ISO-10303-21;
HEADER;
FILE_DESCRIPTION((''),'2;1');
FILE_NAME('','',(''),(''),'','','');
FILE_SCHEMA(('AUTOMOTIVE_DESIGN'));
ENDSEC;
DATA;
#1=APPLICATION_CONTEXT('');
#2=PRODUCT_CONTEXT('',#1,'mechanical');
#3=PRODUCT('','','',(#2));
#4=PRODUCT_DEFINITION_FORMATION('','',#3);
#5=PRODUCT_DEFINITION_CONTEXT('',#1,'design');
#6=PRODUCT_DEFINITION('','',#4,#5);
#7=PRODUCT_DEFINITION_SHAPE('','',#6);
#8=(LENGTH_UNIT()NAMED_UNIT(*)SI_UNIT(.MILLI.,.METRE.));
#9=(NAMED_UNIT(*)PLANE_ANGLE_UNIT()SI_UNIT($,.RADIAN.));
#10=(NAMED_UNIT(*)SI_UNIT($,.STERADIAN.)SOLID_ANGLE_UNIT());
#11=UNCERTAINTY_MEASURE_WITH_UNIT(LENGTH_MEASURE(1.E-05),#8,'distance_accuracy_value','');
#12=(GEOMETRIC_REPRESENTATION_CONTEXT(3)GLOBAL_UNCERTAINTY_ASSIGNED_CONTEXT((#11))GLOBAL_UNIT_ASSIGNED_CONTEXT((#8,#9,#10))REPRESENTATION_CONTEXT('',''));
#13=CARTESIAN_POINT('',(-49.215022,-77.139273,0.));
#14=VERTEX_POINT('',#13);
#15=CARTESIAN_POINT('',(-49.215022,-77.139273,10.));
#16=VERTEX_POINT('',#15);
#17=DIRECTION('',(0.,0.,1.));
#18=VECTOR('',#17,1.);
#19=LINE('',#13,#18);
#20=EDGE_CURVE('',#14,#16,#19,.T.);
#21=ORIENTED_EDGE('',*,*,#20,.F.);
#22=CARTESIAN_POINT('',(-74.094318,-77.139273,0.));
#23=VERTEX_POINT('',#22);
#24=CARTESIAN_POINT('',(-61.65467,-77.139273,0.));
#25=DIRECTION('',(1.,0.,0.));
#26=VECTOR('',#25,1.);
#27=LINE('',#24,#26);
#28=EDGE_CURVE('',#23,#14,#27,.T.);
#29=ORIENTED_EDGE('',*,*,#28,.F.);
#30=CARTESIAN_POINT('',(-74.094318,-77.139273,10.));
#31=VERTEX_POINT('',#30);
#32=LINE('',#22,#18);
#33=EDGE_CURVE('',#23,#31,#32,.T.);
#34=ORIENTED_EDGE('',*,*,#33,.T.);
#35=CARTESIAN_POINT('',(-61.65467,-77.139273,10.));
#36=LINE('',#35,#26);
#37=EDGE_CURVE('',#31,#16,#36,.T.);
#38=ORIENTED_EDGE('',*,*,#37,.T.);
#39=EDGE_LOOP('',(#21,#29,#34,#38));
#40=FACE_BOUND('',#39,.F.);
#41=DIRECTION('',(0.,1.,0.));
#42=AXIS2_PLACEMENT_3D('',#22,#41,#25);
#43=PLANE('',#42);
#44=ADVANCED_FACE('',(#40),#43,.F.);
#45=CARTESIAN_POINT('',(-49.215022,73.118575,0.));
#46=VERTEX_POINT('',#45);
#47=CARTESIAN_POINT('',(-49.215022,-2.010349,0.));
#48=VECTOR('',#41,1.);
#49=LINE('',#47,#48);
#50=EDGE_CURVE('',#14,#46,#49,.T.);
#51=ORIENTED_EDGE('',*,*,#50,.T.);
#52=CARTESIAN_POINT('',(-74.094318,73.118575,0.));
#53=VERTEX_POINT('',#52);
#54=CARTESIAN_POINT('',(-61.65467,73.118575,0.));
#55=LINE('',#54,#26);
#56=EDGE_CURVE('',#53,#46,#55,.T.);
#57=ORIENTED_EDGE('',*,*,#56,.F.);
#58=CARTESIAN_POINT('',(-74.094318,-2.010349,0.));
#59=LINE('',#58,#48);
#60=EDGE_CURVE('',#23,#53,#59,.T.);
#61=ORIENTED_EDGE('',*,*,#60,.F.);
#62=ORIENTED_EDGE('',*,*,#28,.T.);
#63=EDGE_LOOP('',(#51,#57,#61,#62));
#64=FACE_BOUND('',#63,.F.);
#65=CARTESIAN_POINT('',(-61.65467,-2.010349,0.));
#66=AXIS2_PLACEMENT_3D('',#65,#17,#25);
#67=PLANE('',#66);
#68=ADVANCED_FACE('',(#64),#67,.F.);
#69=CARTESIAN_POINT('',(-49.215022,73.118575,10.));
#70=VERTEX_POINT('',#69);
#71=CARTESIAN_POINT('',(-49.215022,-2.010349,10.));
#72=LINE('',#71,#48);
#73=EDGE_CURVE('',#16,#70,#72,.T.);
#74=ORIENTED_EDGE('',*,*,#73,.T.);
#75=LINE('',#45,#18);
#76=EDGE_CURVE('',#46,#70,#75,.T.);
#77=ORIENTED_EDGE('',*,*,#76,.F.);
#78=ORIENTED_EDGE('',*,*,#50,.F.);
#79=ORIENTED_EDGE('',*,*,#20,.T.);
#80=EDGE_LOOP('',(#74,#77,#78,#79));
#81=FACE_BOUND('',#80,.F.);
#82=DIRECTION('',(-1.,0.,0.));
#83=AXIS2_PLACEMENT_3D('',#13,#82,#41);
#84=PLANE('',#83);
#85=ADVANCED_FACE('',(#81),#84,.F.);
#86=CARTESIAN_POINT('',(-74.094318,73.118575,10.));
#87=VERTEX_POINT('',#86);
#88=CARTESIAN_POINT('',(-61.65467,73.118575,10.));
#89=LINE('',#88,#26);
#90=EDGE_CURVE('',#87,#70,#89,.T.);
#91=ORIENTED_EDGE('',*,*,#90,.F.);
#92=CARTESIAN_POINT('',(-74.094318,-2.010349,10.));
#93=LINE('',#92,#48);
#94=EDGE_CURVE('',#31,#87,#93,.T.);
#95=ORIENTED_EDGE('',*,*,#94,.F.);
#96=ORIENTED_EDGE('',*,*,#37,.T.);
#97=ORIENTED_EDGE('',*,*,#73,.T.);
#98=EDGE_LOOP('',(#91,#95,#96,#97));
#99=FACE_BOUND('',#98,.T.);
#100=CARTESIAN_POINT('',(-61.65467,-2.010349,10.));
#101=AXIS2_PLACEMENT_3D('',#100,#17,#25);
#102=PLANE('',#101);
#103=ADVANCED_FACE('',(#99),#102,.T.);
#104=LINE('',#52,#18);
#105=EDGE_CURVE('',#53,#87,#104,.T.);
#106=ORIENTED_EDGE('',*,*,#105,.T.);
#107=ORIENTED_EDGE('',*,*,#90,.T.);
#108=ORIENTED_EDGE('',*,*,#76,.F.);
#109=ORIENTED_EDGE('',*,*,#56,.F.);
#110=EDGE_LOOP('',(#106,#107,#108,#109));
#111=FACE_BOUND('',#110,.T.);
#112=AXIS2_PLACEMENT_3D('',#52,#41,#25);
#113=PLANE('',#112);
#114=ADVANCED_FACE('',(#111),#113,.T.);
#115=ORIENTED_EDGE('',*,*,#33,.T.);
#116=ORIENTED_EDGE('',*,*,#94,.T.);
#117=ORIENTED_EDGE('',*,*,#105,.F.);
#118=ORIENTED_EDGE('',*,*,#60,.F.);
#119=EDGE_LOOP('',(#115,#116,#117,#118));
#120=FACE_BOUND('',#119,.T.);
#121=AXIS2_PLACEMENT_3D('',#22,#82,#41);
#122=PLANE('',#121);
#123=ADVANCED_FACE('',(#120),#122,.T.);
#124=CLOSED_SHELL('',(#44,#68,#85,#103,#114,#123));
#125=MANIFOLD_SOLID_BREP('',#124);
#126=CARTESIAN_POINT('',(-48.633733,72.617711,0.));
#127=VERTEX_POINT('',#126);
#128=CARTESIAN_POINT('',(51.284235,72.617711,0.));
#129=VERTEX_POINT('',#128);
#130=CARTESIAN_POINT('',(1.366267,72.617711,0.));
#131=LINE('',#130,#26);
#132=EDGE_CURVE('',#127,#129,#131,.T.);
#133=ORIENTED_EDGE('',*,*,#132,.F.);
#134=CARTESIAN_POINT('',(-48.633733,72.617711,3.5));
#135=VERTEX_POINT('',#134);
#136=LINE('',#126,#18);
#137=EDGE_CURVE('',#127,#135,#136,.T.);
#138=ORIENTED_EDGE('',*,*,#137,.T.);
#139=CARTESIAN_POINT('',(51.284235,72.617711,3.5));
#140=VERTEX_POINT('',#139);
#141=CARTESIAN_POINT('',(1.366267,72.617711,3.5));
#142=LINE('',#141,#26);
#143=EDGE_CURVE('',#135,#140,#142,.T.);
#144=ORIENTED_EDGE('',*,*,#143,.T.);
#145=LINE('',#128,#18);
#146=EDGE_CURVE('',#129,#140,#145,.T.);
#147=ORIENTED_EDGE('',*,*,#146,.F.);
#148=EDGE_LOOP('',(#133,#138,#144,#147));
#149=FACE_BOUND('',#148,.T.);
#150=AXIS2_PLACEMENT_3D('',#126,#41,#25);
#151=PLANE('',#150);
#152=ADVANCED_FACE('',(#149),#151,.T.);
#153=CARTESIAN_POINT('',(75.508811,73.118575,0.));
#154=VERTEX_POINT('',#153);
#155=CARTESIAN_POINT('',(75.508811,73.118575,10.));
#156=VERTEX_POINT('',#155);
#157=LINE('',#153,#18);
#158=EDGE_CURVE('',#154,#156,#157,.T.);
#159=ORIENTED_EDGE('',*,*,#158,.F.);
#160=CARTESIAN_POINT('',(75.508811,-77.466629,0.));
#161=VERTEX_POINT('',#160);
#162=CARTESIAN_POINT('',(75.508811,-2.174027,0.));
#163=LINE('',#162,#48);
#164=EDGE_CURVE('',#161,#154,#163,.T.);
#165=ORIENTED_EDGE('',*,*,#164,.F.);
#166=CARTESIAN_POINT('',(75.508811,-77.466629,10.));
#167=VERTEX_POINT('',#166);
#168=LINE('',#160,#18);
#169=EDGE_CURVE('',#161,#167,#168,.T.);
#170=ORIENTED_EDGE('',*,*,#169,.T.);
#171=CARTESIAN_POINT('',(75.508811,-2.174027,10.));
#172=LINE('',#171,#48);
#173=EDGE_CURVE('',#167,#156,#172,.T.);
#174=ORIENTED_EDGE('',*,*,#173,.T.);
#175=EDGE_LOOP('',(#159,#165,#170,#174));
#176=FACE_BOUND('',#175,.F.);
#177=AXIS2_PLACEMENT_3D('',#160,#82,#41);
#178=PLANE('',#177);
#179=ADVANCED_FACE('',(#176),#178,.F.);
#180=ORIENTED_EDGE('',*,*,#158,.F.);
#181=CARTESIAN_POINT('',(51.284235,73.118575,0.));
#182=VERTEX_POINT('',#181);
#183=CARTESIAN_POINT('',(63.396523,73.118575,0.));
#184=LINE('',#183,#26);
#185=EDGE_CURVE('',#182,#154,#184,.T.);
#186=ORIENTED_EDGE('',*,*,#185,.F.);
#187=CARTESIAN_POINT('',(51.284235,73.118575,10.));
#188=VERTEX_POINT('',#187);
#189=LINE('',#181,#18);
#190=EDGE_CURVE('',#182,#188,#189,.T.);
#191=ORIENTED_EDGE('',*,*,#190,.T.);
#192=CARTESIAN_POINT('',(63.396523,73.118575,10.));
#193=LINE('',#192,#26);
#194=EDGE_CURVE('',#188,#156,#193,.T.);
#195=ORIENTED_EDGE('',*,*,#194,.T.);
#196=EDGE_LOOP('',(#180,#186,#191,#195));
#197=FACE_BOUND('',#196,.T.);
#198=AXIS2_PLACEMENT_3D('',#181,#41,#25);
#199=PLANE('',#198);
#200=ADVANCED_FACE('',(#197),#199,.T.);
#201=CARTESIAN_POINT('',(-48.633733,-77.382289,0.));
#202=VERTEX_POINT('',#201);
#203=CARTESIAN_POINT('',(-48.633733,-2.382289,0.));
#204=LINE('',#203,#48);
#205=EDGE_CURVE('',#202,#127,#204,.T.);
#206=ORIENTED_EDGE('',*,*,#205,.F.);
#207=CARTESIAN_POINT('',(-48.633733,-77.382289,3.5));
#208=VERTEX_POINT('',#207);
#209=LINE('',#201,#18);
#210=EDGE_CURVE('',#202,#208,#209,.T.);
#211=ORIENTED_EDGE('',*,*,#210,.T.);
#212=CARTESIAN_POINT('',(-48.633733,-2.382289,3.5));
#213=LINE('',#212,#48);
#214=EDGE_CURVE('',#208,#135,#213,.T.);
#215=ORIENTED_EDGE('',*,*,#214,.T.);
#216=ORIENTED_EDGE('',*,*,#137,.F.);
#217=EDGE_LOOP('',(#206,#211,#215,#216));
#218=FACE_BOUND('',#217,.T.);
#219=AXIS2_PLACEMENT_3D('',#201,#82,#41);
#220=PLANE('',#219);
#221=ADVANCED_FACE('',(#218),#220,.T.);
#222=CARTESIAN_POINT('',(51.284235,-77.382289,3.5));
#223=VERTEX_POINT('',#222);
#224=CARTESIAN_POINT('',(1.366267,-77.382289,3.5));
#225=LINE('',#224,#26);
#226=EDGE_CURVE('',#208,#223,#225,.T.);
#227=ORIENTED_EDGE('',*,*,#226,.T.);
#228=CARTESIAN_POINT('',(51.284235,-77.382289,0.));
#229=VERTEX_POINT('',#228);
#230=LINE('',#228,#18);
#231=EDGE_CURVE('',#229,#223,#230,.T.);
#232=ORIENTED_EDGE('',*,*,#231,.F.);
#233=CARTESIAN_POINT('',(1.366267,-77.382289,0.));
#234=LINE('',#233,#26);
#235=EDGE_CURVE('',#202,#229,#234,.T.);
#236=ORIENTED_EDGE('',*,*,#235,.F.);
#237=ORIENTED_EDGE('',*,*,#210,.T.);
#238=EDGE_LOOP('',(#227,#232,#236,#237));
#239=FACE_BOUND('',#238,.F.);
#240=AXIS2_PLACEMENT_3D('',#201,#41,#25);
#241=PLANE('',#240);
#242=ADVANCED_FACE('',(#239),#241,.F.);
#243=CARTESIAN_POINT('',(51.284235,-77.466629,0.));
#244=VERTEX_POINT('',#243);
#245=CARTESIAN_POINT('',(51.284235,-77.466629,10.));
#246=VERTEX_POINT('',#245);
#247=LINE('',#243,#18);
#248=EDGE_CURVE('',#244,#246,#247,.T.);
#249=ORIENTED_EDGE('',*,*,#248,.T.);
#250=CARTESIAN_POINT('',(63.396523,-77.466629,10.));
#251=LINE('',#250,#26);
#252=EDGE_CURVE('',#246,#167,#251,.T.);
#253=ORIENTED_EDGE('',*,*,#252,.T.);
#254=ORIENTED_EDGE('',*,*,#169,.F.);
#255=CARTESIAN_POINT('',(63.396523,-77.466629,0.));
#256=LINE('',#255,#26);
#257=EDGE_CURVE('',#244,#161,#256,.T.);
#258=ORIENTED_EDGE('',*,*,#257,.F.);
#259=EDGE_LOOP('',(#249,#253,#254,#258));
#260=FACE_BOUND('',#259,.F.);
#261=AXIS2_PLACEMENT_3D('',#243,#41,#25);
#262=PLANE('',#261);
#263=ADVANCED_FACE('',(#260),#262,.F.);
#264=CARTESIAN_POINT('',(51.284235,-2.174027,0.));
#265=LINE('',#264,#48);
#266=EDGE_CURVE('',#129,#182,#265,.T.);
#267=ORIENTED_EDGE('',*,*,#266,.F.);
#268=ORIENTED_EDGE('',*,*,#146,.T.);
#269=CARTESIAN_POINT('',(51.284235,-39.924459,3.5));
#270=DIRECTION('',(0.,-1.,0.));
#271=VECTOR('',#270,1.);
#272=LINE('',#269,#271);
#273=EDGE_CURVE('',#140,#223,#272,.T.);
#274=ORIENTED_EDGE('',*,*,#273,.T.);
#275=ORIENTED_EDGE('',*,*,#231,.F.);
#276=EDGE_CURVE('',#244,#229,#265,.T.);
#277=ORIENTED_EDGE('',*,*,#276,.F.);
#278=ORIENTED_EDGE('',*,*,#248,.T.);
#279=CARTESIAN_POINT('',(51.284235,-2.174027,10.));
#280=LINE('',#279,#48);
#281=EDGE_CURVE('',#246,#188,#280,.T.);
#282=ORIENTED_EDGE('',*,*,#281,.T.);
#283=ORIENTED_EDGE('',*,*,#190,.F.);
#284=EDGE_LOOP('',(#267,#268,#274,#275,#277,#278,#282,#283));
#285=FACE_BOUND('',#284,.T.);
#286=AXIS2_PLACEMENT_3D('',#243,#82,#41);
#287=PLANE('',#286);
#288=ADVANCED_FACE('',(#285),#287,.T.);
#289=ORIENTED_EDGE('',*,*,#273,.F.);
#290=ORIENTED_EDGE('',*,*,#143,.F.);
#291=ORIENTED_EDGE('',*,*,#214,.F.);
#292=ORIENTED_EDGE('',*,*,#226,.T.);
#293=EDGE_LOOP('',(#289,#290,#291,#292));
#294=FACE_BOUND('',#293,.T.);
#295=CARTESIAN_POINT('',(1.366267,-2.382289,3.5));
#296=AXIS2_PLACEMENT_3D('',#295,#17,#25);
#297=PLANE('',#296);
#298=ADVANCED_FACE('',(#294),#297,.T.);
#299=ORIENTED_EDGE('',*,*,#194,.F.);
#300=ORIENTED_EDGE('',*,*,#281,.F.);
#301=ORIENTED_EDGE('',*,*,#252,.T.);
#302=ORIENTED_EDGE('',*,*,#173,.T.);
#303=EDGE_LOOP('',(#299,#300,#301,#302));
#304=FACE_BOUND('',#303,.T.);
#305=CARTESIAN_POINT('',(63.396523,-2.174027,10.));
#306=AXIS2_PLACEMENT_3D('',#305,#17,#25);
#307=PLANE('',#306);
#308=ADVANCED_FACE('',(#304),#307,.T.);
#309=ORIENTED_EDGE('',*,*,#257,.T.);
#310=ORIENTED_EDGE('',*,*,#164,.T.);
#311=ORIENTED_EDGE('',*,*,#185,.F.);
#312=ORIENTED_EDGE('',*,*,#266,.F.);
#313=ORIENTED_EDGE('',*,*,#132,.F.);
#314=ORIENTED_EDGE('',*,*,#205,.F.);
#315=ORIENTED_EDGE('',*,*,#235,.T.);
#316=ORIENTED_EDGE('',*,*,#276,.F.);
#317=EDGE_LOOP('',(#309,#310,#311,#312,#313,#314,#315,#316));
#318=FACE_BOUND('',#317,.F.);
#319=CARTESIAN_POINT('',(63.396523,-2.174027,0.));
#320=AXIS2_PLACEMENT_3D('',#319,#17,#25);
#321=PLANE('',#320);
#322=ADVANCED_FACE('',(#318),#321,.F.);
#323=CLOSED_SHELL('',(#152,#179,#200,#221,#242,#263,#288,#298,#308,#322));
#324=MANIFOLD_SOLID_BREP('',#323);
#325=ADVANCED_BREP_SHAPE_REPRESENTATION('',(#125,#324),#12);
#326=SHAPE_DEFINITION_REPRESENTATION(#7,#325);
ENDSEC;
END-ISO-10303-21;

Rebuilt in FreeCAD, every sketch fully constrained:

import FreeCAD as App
import Part
import Sketcher
from FreeCAD import Vector

doc = App.newDocument("Part")
body = doc.addObject("PartDesign::Body", "Body")
body.AllowCompound = True

# Sketch on XY plane
sketch1 = body.newObject("Sketcher::SketchObject", "Sketch")
sketch1.AttachmentSupport = (doc.getObject("XY_Plane"), [""])
sketch1.MapMode = "FlatFace"
sketch1.addGeometry([
    Part.LineSegment(Vector(-49, 73, 0), Vector(-49, -77, 0)),
    Part.LineSegment(Vector(-49, -77, 0), Vector(51, -77, 0)),
    Part.LineSegment(Vector(51, -77, 0), Vector(51, 73, 0)),
    Part.LineSegment(Vector(51, 73, 0), Vector(-49, 73, 0)),
], False)
sketch1.addConstraint([
    Sketcher.Constraint("Coincident", 0, 2, 1, 1),
    Sketcher.Constraint("Coincident", 1, 2, 2, 1),
    Sketcher.Constraint("Coincident", 2, 2, 3, 1),
    Sketcher.Constraint("Coincident", 3, 2, 0, 1),
    Sketcher.Constraint("Vertical", 0),
    Sketcher.Constraint("Horizontal", 1),
    Sketcher.Constraint("Vertical", 2),
    Sketcher.Constraint("Horizontal", 3),
    Sketcher.Constraint("DistanceX", 1, 1, 1, 2, 100.0),
    Sketcher.Constraint("DistanceY", 0, 2, 0, 1, 150.0),
    Sketcher.Constraint("DistanceY", 0, 2, -1, 1, 77.382289),
    Sketcher.Constraint("DistanceX", 0, 2, -1, 1, 48.633733),
])
pad1 = body.newObject("PartDesign::Pad", "Pad")
pad1.Profile = sketch1
pad1.Length = 3.5

# Sketch on XY plane
sketch2 = body.newObject("Sketcher::SketchObject", "Sketch001")
sketch2.AttachmentSupport = (doc.getObject("XY_Plane"), [""])
sketch2.MapMode = "FlatFace"
sketch2.addGeometry([
    Part.LineSegment(Vector(-74, 73, 0), Vector(-74, -77, 0)),  # 0
    Part.LineSegment(Vector(-74, -77, 0), Vector(-49, -77, 0)),  # 1
    Part.LineSegment(Vector(-49, -77, 0), Vector(-49, 73, 0)),  # 2
    Part.LineSegment(Vector(-49, 73, 0), Vector(-74, 73, 0)),  # 3
    Part.LineSegment(Vector(51, 73, 0), Vector(51, -77, 0)),  # 4
    Part.LineSegment(Vector(51, -77, 0), Vector(76, -77, 0)),  # 5
    Part.LineSegment(Vector(76, -77, 0), Vector(76, 73, 0)),  # 6
    Part.LineSegment(Vector(76, 73, 0), Vector(51, 73, 0)),  # 7
], False)
sketch2.addConstraint([
    Sketcher.Constraint("Coincident", 0, 2, 1, 1),
    Sketcher.Constraint("Coincident", 1, 2, 2, 1),
    Sketcher.Constraint("Coincident", 2, 2, 3, 1),
    Sketcher.Constraint("Coincident", 3, 2, 0, 1),
    Sketcher.Constraint("Coincident", 4, 2, 5, 1),
    Sketcher.Constraint("Coincident", 5, 2, 6, 1),
    Sketcher.Constraint("Coincident", 6, 2, 7, 1),
    Sketcher.Constraint("Coincident", 7, 2, 4, 1),
    Sketcher.Constraint("Vertical", 0),
    Sketcher.Constraint("Horizontal", 1),
    Sketcher.Constraint("Vertical", 2),
    Sketcher.Constraint("Horizontal", 3),
    Sketcher.Constraint("Vertical", 4),
    Sketcher.Constraint("Horizontal", 5),
    Sketcher.Constraint("Vertical", 6),
    Sketcher.Constraint("Horizontal", 7),
    Sketcher.Constraint("Horizontal", 3, 2, 6, 2),
    Sketcher.Constraint("DistanceY", 0, 2, 0, 1, 150.257848),
    Sketcher.Constraint("DistanceX", 1, 1, 1, 2, 24.879296),
    Sketcher.Constraint("DistanceX", 5, 1, 5, 2, 24.224576),
    Sketcher.Constraint("DistanceY", 4, 2, 4, 1, 150.585204),
    Sketcher.Constraint("DistanceX", 0, 2, -1, 1, 74.094318),
    Sketcher.Constraint("DistanceY", 4, 2, -1, 1, 77.466629),
    Sketcher.Constraint("DistanceX", -1, 1, 5, 2, 75.508811),
])
pad2 = body.newObject("PartDesign::Pad", "Pad001")
pad2.Profile = sketch2
pad2.Length = 10

doc.recompute()
